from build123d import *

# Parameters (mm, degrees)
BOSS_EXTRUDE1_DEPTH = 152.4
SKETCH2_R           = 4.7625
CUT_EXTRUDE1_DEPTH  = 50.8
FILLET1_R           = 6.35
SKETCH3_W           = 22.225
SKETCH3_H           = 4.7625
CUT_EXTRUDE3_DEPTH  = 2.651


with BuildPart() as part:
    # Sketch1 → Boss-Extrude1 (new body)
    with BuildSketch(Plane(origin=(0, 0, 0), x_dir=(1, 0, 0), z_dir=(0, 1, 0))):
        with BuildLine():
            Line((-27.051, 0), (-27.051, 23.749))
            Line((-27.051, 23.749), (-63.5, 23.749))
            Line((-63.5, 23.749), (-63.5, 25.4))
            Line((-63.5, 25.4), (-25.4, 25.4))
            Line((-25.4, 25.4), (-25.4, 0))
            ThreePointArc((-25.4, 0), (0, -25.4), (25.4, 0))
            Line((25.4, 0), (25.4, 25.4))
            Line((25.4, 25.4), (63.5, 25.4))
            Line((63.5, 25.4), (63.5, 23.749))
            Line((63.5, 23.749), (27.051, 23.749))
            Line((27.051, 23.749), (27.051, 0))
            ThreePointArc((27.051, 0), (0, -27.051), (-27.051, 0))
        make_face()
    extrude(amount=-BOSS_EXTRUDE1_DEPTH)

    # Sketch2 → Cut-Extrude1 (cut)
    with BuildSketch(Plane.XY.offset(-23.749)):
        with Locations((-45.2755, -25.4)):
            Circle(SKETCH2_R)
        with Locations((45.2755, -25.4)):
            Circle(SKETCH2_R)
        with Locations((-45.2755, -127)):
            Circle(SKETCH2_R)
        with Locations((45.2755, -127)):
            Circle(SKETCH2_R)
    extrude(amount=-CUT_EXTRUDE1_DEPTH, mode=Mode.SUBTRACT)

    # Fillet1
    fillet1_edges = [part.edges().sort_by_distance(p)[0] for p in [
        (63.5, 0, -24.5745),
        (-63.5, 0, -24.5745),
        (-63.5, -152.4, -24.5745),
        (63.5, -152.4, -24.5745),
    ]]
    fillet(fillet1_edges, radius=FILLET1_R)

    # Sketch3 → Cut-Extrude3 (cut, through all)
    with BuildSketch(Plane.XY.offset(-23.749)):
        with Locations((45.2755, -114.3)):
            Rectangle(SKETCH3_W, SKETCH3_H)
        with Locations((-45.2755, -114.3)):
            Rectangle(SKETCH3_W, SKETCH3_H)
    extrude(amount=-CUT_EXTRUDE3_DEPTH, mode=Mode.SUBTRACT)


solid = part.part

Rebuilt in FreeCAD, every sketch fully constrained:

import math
import FreeCAD as App
import Part
import Sketcher
Q = App.Units.Quantity


def edges_at(feature, points):
    """Names of the edges that pass closest to the given points."""
    edges = feature.Shape.Edges
    near = lambda p: min(range(len(edges)), key=lambda i: edges[i].distToShape(Part.Vertex(*p))[0])
    return sorted({f"Edge{near(p) + 1}" for p in points})


def add_polygon(sketch, points):
    """Adds a closed chain of lines whose ends are joined by coincident constraints."""
    first, n = sketch.GeometryCount, len(points)
    for a, b in zip(points, points[1:] + points[:1]):
        sketch.addGeometry(Part.LineSegment(App.Vector(*a, 0), App.Vector(*b, 0)), False)
    for i in range(n):
        sketch.addConstraint(Sketcher.Constraint("Coincident", first + i, 2, first + (i + 1) % n, 1))

doc = App.newDocument("Part")
body = doc.addObject("PartDesign::Body", "Body")

sketch1 = body.newObject("Sketcher::SketchObject", "Sketch")
sketch1.AttachmentSupport = (doc.getObject("XZ_Plane"), [""])
sketch1.MapMode = "FlatFace"
sketch1.addGeometry([
    Part.LineSegment(App.Vector(-27.051, -23.749, 0), App.Vector(-27.051, 0, 0)),
    Part.ArcOfCircle(Part.Circle(App.Vector(0, 0, 0), App.Vector(0, 0, 1), 27.051), math.radians(0), math.radians(180)),
    Part.LineSegment(App.Vector(27.051, 0, 0), App.Vector(27.051, -23.749, 0)),
    Part.LineSegment(App.Vector(27.051, -23.749, 0), App.Vector(63.5, -23.749, 0)),
    Part.LineSegment(App.Vector(63.5, -23.749, 0), App.Vector(63.5, -25.4, 0)),
    Part.LineSegment(App.Vector(63.5, -25.4, 0), App.Vector(25.4, -25.4, 0)),
    Part.LineSegment(App.Vector(25.4, -25.4, 0), App.Vector(25.4, 0, 0)),
    Part.ArcOfCircle(Part.Circle(App.Vector(0, 0, 0), App.Vector(0, 0, 1), 25.4), math.radians(0), math.radians(180)),
    Part.LineSegment(App.Vector(-25.4, 0, 0), App.Vector(-25.4, -25.4, 0)),
    Part.LineSegment(App.Vector(-25.4, -25.4, 0), App.Vector(-63.5, -25.4, 0)),
    Part.LineSegment(App.Vector(-63.5, -25.4, 0), App.Vector(-63.5, -23.749, 0)),
    Part.LineSegment(App.Vector(-63.5, -23.749, 0), App.Vector(-27.051, -23.749, 0)),
], False)
sketch1.addConstraint([
    Sketcher.Constraint("Tangent", 0, 2, 1, 2),
    Sketcher.Constraint("Tangent", 1, 1, 2, 1),
    Sketcher.Constraint("Coincident", 2, 2, 3, 1),
    Sketcher.Constraint("Coincident", 3, 2, 4, 1),
    Sketcher.Constraint("Coincident", 4, 2, 5, 1),
    Sketcher.Constraint("Coincident", 5, 2, 6, 1),
    Sketcher.Constraint("Tangent", 6, 2, 7, 1),
    Sketcher.Constraint("Tangent", 7, 2, 8, 1),
    Sketcher.Constraint("Coincident", 8, 2, 9, 1),
    Sketcher.Constraint("Coincident", 9, 2, 10, 1),
    Sketcher.Constraint("Coincident", 10, 2, 11, 1),
    Sketcher.Constraint("Coincident", 11, 2, 0, 1),
    Sketcher.Constraint("Vertical", 0),
    Sketcher.Constraint("Vertical", 2),
    Sketcher.Constraint("Horizontal", 3),
    Sketcher.Constraint("Vertical", 4),
    Sketcher.Constraint("Horizontal", 5),
    Sketcher.Constraint("Vertical", 6),
    Sketcher.Constraint("Vertical", 8),
    Sketcher.Constraint("Horizontal", 9),
    Sketcher.Constraint("Vertical", 10),
    Sketcher.Constraint("Horizontal", 11),
    Sketcher.Constraint("Coincident", 1, 3, -1, 1),
    Sketcher.Constraint("Coincident", 7, 3, -1, 1),
    Sketcher.Constraint("Symmetric", 4, 2, 9, 2, -2),
    Sketcher.Constraint("Horizontal", 3, 2, 10, 2),
    Sketcher.Constraint("Radius", 7, Q("1 in")),
    Sketcher.Constraint("DistanceY", 6, 1, 6, 2, Q("1 in")),
    Sketcher.Constraint("DistanceX", 5, 2, 5, 1, Q("1.5 in")),
    Sketcher.Constraint("Radius", 1, Q("1.065 in")),
    Sketcher.Constraint("DistanceY", 0, 1, 0, 2, Q("0.935 in")),
])
pad1 = body.newObject("PartDesign::Pad", "Pad")
pad1.Profile = sketch1
pad1.Length = Q("6 in")

sketch2 = body.newObject("Sketcher::SketchObject", "Sketch001")
sketch2.AttachmentSupport = (doc.getObject("XY_Plane"), [""])
sketch2.MapMode = "FlatFace"
sketch2.AttachmentOffset = App.Placement(App.Vector(0, 0, -0.935 * 25.4), App.Rotation())
sketch2.addGeometry([
    Part.Circle(App.Vector(-45.2755, -25.4, 0), App.Vector(0, 0, 1), 4.7625),
    Part.Circle(App.Vector(45.2755, -25.4, 0), App.Vector(0, 0, 1), 4.7625),
    Part.Circle(App.Vector(-45.2755, -127, 0), App.Vector(0, 0, 1), 4.7625),
    Part.Circle(App.Vector(45.2755, -127, 0), App.Vector(0, 0, 1), 4.7625),
], False)
sketch2.addConstraint([
    Sketcher.Constraint("Equal", 0, 1),
    Sketcher.Constraint("Equal", 1, 2),
    Sketcher.Constraint("Equal", 2, 3),
    Sketcher.Constraint("Symmetric", 0, 3, 1, 3, -2),
    Sketcher.Constraint("Symmetric", 2, 3, 3, 3, -2),
    Sketcher.Constraint("Vertical", 0, 3, 2, 3),
    Sketcher.Constraint("Diameter", 0, Q("0.375 in")),
    Sketcher.Constraint("DistanceY", 0, 3, -1, 1, Q("1 in")),
    Sketcher.Constraint("DistanceY", 2, 3, -1, 1, Q("5 in")),
    Sketcher.Constraint("DistanceX", 0, 3, 1, 3, Q("3.565 in")),
])
pocket1 = body.newObject("PartDesign::Pocket", "Pocket")
pocket1.Profile = sketch2
pocket1.Length = Q("2 in")
doc.recompute()

fillet = body.newObject("PartDesign::Fillet", "Fillet")
fillet.Base = (pocket1, edges_at(pocket1, [
    (63.5, 0, -24.575),
    (-63.5, 0, -24.575),
    (-63.5, -152.4, -24.575),
    (63.5, -152.4, -24.575),
]))
fillet.Radius = Q("0.25 in")

sketch3 = body.newObject("Sketcher::SketchObject", "Sketch002")
sketch3.AttachmentSupport = (doc.getObject("XY_Plane"), [""])
sketch3.MapMode = "FlatFace"
sketch3.AttachmentOffset = App.Placement(App.Vector(0, 0, -0.935 * 25.4), App.Rotation())
add_polygon(sketch3, [(34.163, -111.91875), (34.163, -116.68125), (56.388, -116.68125), (56.388, -111.91875)])
add_polygon(sketch3, [(-56.388, -111.91875), (-56.388, -116.68125), (-34.163, -116.68125), (-34.163, -111.91875)])
sketch3.addConstraint([
    Sketcher.Constraint("Vertical", 0),
    Sketcher.Constraint("Horizontal", 1),
    Sketcher.Constraint("Vertical", 2),
    Sketcher.Constraint("Horizontal", 3),
    Sketcher.Constraint("Vertical", 4),
    Sketcher.Constraint("Horizontal", 5),
    Sketcher.Constraint("Vertical", 6),
    Sketcher.Constraint("Horizontal", 7),
    Sketcher.Constraint("Symmetric", 1, 2, 4, 2, -2),
    Sketcher.Constraint("Symmetric", 3, 2, 6, 2, -2),
    Sketcher.Constraint("DistanceX", 1, 1, 1, 2, Q("0.875 in")),
    Sketcher.Constraint("DistanceY", 0, 2, 0, 1, Q("0.1875 in")),
    Sketcher.Constraint("DistanceX", -1, 1, 1, 2, Q("2.22 in")),
    Sketcher.Constraint("DistanceY", 0, 2, -1, 1, Q("4.59375 in")),
])
pocket2 = body.newObject("PartDesign::Pocket", "Pocket001")
pocket2.Profile = sketch3
pocket2.Type = "ThroughAll"

doc.recompute()
